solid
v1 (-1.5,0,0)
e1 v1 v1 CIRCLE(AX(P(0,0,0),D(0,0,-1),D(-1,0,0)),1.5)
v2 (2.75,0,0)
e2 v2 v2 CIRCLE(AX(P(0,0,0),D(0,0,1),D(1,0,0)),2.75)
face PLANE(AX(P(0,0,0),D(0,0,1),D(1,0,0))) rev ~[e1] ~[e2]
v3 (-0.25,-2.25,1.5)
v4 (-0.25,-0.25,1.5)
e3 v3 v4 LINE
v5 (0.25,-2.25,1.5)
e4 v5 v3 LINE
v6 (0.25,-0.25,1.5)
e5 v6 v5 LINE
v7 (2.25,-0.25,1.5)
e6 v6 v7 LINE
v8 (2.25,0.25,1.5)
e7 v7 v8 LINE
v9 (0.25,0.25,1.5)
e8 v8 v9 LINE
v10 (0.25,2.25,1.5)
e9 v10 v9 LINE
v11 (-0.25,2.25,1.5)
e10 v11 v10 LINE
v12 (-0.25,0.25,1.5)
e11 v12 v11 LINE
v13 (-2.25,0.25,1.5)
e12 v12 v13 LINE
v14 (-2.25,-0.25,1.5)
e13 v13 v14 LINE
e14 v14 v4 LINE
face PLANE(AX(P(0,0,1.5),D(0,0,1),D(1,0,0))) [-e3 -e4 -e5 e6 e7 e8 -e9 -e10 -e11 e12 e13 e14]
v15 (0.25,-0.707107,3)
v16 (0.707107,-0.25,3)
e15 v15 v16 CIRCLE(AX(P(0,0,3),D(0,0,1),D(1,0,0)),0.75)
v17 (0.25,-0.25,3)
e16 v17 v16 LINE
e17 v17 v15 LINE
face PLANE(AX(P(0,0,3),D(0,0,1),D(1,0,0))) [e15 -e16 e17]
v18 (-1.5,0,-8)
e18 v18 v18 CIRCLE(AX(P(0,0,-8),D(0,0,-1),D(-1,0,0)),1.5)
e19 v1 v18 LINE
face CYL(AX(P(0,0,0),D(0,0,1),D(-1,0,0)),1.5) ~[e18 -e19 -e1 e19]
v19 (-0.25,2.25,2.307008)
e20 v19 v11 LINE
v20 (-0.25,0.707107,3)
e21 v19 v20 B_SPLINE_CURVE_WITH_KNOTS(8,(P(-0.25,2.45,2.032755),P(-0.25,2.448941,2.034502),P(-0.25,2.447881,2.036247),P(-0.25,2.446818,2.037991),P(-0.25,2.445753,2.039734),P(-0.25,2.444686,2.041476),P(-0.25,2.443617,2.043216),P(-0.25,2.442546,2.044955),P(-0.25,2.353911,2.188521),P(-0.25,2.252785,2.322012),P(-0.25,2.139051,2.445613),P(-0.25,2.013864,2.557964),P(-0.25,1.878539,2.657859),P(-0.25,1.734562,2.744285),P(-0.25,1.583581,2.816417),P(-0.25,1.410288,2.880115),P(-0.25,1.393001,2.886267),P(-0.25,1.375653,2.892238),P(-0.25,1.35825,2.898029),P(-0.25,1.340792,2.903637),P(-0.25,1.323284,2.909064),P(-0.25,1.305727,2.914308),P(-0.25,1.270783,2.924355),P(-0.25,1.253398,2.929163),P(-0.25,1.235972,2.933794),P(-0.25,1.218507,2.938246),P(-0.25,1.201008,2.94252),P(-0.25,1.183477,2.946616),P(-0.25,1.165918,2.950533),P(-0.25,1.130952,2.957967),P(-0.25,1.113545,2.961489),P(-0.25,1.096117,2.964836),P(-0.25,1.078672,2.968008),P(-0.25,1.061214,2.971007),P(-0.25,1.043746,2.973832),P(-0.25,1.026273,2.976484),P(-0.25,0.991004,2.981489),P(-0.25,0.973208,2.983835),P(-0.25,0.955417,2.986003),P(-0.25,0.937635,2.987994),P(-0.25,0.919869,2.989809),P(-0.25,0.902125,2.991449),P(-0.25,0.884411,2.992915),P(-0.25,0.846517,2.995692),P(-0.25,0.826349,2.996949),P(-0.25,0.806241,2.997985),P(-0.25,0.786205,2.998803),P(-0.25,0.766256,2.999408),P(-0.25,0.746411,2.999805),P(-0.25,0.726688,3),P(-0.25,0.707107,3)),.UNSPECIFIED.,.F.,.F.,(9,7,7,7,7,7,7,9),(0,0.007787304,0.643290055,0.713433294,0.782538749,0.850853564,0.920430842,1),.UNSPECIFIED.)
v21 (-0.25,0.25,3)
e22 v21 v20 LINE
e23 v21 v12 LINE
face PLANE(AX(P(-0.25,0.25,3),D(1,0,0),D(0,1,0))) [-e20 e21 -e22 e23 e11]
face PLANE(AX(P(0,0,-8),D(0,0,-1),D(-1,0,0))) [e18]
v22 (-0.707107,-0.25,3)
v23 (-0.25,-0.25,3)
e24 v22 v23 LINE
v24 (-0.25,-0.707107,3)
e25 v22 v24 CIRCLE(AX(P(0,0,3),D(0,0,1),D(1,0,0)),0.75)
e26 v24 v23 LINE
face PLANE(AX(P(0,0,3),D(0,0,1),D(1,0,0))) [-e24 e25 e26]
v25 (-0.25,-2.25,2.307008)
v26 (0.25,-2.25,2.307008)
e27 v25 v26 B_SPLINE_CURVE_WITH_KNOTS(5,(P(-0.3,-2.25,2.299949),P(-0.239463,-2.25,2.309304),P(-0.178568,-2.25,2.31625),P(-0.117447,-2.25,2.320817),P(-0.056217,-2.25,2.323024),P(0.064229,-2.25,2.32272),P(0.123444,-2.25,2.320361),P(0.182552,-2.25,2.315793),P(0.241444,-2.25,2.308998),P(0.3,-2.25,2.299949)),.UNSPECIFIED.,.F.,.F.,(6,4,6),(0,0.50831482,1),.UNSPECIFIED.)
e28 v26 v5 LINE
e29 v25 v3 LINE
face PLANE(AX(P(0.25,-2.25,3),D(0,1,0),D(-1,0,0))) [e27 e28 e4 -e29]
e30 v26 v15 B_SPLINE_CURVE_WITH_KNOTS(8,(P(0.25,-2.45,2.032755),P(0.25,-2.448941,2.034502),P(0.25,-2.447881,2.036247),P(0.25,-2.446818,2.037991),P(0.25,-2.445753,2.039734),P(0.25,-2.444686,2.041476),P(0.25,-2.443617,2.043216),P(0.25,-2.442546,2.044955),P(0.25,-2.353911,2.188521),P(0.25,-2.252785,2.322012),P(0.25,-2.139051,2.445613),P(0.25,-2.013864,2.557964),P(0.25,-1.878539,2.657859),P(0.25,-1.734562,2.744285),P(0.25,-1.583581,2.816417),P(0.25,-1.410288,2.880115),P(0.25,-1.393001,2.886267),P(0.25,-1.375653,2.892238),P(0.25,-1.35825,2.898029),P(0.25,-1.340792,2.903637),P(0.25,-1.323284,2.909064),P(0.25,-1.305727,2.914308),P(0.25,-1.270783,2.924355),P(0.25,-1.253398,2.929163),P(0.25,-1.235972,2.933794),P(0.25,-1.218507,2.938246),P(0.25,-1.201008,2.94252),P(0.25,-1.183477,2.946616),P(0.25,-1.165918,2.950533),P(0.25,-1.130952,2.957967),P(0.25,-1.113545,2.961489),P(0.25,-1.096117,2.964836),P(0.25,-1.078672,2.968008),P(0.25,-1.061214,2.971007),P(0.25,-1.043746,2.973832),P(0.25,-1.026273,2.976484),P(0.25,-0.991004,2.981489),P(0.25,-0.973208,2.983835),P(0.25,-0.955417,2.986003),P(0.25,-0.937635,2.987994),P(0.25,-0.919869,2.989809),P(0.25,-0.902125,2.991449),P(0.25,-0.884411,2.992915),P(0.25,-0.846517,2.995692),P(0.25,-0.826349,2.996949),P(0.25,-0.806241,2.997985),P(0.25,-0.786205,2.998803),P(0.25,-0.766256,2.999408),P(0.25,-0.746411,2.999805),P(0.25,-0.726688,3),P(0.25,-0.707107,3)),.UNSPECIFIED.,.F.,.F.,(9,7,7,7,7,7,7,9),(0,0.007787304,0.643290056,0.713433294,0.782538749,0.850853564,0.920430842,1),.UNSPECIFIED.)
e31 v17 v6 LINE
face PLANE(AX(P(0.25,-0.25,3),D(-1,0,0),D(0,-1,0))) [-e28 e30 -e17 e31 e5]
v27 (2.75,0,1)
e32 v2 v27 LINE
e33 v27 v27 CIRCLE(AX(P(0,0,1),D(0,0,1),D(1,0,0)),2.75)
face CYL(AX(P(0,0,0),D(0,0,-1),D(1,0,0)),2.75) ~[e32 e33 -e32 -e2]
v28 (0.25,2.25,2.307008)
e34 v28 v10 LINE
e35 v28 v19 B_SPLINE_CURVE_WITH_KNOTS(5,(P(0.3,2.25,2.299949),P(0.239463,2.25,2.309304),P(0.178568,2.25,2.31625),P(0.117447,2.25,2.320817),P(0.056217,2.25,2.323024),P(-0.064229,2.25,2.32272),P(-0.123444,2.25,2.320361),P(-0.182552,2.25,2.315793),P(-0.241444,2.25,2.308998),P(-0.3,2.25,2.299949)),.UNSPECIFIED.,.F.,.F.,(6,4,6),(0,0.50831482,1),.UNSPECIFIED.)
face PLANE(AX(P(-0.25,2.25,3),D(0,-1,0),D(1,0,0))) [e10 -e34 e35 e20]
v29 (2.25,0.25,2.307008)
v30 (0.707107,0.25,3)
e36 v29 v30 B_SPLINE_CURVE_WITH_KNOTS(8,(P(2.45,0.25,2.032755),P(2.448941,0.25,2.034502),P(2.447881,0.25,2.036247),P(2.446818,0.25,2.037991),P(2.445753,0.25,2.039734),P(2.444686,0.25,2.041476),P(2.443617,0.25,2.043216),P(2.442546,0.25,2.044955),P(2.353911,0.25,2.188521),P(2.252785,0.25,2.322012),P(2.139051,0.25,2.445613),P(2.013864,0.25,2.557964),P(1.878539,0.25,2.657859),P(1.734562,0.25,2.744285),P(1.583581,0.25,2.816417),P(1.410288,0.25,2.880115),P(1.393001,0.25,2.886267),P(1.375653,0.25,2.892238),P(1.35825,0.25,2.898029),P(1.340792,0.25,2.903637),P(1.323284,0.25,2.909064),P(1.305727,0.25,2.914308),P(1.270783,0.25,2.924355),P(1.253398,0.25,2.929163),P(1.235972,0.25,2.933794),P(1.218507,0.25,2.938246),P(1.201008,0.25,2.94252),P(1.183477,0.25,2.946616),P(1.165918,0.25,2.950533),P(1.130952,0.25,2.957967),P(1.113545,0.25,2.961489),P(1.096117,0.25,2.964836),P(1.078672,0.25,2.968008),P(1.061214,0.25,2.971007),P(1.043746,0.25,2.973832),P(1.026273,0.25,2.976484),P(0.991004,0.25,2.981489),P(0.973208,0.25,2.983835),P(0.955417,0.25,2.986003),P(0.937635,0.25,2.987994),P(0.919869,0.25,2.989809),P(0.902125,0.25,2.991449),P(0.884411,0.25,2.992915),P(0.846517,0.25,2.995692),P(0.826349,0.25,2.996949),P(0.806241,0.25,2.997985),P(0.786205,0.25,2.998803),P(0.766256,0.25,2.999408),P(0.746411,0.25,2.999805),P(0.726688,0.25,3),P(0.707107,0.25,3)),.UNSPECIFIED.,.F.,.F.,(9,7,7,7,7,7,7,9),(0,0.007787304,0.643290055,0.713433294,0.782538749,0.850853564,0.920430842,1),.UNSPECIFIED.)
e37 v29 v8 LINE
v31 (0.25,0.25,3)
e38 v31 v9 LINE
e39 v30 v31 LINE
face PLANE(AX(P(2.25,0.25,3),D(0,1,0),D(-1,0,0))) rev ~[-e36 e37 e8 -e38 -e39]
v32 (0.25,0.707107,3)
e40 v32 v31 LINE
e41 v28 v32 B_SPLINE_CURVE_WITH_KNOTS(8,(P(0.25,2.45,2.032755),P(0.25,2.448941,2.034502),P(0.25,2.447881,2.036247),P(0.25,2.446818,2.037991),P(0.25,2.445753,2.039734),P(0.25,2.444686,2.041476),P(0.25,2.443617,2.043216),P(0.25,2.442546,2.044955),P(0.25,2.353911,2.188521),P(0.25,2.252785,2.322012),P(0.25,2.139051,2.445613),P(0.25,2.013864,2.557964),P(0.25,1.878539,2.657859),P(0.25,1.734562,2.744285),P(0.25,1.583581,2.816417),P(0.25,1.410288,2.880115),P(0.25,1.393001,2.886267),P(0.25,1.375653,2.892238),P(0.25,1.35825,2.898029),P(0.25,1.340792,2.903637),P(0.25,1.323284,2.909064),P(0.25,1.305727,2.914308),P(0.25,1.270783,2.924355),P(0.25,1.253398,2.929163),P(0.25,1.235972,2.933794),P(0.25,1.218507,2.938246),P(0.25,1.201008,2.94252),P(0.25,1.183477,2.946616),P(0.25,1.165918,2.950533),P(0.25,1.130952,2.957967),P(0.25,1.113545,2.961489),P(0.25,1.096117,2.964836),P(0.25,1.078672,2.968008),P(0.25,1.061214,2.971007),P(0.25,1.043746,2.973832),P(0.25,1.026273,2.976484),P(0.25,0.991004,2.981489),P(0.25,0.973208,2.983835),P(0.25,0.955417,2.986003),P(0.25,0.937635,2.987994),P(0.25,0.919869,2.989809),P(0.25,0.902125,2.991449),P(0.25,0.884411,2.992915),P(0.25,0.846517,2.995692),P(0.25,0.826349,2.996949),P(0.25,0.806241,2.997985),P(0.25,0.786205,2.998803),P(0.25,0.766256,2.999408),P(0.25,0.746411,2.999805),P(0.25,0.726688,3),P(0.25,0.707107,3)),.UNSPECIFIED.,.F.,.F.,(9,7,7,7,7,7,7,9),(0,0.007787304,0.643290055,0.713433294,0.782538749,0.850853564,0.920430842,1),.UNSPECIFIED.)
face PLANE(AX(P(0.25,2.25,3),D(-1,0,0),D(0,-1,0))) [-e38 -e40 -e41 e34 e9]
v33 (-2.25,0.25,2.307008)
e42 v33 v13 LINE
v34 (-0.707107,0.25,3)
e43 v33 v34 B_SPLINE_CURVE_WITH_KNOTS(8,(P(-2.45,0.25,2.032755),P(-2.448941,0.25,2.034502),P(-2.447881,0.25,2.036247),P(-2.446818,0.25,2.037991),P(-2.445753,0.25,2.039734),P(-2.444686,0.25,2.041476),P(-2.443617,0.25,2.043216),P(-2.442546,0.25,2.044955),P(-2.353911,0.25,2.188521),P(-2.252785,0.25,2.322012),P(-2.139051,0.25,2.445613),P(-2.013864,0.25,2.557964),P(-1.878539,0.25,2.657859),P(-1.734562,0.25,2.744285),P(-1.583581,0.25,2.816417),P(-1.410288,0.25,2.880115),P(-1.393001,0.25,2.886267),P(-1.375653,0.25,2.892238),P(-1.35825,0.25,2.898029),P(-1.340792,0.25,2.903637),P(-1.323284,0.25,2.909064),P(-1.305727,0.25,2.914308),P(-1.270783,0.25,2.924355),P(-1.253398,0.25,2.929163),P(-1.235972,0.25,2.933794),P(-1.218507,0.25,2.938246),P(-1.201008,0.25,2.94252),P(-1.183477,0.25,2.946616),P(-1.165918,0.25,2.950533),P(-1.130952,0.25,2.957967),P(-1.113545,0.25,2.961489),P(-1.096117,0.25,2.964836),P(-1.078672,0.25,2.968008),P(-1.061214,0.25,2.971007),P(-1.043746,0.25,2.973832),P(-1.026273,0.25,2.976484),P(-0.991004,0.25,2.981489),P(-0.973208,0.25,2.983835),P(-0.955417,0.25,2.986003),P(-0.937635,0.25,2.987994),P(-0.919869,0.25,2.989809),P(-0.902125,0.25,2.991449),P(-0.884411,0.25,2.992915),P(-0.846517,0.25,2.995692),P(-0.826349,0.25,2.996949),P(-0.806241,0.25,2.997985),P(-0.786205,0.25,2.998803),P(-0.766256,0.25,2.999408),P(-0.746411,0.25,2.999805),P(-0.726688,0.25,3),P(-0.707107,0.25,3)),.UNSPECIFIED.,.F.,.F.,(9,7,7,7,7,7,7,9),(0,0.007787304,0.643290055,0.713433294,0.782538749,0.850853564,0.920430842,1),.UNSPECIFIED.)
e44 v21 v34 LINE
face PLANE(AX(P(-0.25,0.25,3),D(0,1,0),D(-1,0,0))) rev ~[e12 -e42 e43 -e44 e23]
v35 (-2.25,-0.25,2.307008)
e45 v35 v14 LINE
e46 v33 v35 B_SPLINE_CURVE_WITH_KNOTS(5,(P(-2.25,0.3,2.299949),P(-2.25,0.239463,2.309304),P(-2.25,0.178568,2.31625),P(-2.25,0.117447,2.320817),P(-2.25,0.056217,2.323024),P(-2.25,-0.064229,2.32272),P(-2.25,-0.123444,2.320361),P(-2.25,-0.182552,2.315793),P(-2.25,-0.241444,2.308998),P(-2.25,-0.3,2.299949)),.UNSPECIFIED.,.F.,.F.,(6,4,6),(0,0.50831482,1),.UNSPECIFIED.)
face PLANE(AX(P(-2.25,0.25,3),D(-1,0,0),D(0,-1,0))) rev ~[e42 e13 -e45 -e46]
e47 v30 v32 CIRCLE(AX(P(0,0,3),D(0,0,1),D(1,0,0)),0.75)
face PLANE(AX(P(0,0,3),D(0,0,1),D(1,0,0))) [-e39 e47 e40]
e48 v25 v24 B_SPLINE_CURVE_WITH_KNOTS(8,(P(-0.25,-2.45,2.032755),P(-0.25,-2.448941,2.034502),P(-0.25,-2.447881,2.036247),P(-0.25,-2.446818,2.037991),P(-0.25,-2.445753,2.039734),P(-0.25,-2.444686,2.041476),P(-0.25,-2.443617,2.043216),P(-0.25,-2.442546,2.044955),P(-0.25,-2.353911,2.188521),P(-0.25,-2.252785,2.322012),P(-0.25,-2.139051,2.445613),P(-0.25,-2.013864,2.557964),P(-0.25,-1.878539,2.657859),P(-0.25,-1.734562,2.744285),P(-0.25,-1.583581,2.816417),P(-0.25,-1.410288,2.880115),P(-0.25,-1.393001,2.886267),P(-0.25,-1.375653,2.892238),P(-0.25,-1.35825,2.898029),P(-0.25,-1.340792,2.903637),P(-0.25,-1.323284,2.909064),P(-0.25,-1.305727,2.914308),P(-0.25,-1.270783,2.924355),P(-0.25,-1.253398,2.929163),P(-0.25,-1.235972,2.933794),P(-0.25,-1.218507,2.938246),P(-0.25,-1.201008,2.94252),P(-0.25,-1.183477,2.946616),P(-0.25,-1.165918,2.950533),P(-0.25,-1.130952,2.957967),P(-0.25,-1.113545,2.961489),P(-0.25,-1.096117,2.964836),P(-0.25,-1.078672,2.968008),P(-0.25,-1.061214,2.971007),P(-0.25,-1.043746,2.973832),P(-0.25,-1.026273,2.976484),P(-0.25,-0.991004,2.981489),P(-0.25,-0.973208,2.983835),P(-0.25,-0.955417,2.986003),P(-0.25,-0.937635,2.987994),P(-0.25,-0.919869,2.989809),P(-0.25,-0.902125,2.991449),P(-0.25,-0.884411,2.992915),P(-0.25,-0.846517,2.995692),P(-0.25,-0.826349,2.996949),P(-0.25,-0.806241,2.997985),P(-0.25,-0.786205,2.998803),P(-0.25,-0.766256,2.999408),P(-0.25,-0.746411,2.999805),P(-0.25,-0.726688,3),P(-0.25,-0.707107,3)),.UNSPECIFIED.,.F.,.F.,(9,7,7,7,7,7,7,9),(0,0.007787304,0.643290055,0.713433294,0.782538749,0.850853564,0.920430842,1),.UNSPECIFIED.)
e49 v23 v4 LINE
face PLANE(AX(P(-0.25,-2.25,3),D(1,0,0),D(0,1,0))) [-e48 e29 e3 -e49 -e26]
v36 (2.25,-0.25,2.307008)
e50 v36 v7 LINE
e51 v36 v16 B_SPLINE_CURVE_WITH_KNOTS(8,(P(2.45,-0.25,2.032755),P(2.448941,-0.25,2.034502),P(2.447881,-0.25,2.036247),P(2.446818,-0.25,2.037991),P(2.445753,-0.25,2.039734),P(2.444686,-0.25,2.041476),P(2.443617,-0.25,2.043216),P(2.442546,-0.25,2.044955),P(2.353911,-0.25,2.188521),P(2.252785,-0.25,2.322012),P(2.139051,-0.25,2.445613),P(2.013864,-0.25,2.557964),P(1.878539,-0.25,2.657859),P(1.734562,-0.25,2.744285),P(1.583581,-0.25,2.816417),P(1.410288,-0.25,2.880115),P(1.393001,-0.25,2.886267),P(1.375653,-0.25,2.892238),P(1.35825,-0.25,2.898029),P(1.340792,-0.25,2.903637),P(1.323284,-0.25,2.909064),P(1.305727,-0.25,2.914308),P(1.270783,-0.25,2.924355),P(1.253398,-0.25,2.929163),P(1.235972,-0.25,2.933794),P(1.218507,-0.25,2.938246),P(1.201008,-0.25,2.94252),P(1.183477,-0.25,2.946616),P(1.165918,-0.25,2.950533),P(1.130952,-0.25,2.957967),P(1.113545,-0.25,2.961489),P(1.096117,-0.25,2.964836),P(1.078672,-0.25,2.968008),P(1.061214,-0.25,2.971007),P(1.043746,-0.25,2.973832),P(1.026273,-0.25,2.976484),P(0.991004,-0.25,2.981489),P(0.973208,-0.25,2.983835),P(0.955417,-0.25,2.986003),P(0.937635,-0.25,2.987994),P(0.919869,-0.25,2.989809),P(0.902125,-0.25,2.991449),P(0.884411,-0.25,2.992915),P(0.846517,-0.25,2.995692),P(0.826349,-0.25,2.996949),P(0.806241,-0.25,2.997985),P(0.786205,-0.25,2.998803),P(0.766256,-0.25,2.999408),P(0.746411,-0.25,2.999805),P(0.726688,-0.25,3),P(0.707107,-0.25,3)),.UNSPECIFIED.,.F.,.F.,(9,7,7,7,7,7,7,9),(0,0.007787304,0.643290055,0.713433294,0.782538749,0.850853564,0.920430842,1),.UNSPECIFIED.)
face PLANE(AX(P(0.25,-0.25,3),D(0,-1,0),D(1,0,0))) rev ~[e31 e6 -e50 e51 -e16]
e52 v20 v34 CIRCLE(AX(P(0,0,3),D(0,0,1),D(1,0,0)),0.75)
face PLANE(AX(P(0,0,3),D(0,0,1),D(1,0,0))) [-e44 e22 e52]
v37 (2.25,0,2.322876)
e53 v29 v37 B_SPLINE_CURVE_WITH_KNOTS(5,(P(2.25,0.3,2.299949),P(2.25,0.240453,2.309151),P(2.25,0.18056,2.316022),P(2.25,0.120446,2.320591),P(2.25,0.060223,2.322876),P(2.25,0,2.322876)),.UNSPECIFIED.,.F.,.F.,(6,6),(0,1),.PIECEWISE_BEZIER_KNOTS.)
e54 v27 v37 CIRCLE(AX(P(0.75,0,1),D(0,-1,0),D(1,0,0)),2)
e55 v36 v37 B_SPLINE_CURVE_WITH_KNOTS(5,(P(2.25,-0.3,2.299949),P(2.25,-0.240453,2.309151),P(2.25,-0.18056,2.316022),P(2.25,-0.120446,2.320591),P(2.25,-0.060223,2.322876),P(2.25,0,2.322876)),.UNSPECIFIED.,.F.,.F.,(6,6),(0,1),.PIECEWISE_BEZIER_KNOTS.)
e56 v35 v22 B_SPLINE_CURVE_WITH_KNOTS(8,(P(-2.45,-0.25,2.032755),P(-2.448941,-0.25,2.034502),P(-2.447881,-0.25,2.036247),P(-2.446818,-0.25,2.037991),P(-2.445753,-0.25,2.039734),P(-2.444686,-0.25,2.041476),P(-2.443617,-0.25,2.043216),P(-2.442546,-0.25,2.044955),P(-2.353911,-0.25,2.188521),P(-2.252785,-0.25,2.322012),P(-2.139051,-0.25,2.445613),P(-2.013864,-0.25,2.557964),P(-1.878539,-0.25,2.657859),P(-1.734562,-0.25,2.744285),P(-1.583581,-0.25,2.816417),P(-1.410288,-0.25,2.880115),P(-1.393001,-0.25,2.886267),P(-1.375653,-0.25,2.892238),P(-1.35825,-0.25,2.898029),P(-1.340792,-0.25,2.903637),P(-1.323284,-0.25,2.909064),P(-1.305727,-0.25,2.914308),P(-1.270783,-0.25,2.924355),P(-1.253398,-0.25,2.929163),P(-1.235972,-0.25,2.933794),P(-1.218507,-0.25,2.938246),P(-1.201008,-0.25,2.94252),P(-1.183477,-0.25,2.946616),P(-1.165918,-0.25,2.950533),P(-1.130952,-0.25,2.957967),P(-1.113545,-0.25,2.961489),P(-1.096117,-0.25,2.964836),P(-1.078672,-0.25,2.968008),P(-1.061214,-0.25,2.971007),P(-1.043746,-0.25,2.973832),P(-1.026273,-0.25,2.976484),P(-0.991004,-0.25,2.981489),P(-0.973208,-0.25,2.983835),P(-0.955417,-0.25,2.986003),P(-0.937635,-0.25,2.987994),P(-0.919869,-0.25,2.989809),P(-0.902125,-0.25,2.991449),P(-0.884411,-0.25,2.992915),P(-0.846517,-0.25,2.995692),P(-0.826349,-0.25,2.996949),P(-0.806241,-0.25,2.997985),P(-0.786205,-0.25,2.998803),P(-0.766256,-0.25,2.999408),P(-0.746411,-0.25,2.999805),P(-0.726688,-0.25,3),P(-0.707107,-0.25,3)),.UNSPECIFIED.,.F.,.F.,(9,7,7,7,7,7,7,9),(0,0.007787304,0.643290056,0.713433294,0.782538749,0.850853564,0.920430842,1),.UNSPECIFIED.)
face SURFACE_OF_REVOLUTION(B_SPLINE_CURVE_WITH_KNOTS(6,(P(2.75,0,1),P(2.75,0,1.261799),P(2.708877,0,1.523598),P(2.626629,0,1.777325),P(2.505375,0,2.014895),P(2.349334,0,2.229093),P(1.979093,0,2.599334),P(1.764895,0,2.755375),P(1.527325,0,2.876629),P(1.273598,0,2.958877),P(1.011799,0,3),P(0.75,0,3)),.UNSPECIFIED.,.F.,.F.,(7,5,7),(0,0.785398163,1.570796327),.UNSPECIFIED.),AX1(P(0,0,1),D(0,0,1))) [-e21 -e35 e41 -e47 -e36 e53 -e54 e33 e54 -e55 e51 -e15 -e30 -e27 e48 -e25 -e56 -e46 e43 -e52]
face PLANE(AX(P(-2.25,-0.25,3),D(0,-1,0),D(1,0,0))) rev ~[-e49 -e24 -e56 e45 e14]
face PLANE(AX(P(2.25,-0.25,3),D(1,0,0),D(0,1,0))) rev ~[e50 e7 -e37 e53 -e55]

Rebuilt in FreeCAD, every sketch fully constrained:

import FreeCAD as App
import Part
import Sketcher
from FreeCAD import Vector
Q = App.Units.Quantity


def edges_at(feature, points):
    """Names of the edges that pass closest to the given points."""
    edges = feature.Shape.Edges
    near = lambda p: min(range(len(edges)), key=lambda i: edges[i].distToShape(Part.Vertex(*p))[0])
    return sorted({f"Edge{near(p) + 1}" for p in points})


def add_polygon(sketch, points):
    """Adds a closed chain of lines whose ends are joined by coincident constraints."""
    first, n = sketch.GeometryCount, len(points)
    for a, b in zip(points, points[1:] + points[:1]):
        sketch.addGeometry(Part.LineSegment(App.Vector(*a, 0), App.Vector(*b, 0)), False)
    for i in range(n):
        sketch.addConstraint(Sketcher.Constraint("Coincident", first + i, 2, first + (i + 1) % n, 1))

doc = App.newDocument("Part")
body = doc.addObject("PartDesign::Body", "Body")

sketch1 = doc.addObject("Sketcher::SketchObject", "Sketch")
body.addObject(sketch1)
sketch1.AttachmentSupport = (doc.XY_Plane, [""])
sketch1.MapMode = "FlatFace"
sketch1.addGeometry(Part.Circle(Vector(0, 0, 0), Vector(0, 0, 1), 2.75), False)
sketch1.addConstraint(Sketcher.Constraint("Coincident", 0, 3, -1, 1))
sketch1.addConstraint(Sketcher.Constraint("Diameter", 0, Q("5.5 mm")))
pad1 = doc.addObject("PartDesign::Pad", "Pad")
body.addObject(pad1)
pad1.Profile = sketch1
pad1.Length = 3
doc.recompute()

fillet = doc.addObject("PartDesign::Fillet", "Fillet")
body.addObject(fillet)
fillet.Base = (pad1, edges_at(pad1, [(-2.75, 0, 3)]))
fillet.Radius = 2

sketch2 = doc.addObject("Sketcher::SketchObject", "Sketch001")
body.addObject(sketch2)
sketch2.AttachmentSupport = (doc.XY_Plane, [""])
sketch2.MapMode = "FlatFace"
sketch2.AttachmentOffset = App.Placement(Vector(0, 0, 3), App.Rotation())
add_polygon(sketch2, [(-0.25, -2.25), (0.25, -2.25), (0.25, -0.25), (2.25, -0.25), (2.25, 0.25), (0.25, 0.25), (0.25, 2.25), (-0.25, 2.25), (-0.25, 0.25), (-2.25, 0.25), (-2.25, -0.25), (-0.25, -0.25)])
sketch2.addConstraint(Sketcher.Constraint("Horizontal", 0))
sketch2.addConstraint(Sketcher.Constraint("Vertical", 1))
sketch2.addConstraint(Sketcher.Constraint("Horizontal", 2))
sketch2.addConstraint(Sketcher.Constraint("Vertical", 3))
sketch2.addConstraint(Sketcher.Constraint("Horizontal", 4))
sketch2.addConstraint(Sketcher.Constraint("Vertical", 5))
sketch2.addConstraint(Sketcher.Constraint("Horizontal", 6))
sketch2.addConstraint(Sketcher.Constraint("Vertical", 7))
sketch2.addConstraint(Sketcher.Constraint("Horizontal", 8))
sketch2.addConstraint(Sketcher.Constraint("Vertical", 9))
sketch2.addConstraint(Sketcher.Constraint("Horizontal", 10))
sketch2.addConstraint(Sketcher.Constraint("Vertical", 11))
sketch2.addConstraint(Sketcher.Constraint("Symmetric", 0, 2, 6, 2, -1, 1))
sketch2.addConstraint(Sketcher.Constraint("Symmetric", 2, 2, 8, 2, -1, 1))
sketch2.addConstraint(Sketcher.Constraint("Symmetric", 4, 2, 10, 2, -1, 1))
sketch2.addConstraint(Sketcher.Constraint("Symmetric", 4, 2, 7, 2, -2))
sketch2.addConstraint(Sketcher.Constraint("Equal", 10, 1))
sketch2.addConstraint(Sketcher.Constraint("Equal", 6, 3))
sketch2.addConstraint(Sketcher.Constraint("DistanceX", 0, 1, 0, 2, Q("0.5 mm")))
sketch2.addConstraint(Sketcher.Constraint("DistanceY", 0, 2, 5, 2, Q("4.5 mm")))
pocket1 = doc.addObject("PartDesign::Pocket", "Pocket")
body.addObject(pocket1)
pocket1.Profile = sketch2
pocket1.Length = 1.5

sketch3 = doc.addObject("Sketcher::SketchObject", "Sketch002")
body.addObject(sketch3)
sketch3.AttachmentSupport = (doc.XY_Plane, [""])
sketch3.MapMode = "FlatFace"
sketch3.addGeometry(Part.Circle(Vector(0, 0, 0), Vector(0, 0, 1), 1.5), False)
sketch3.addConstraint(Sketcher.Constraint("Coincident", 0, 3, -1, 1))
sketch3.addConstraint(Sketcher.Constraint("Diameter", 0, Q("3 mm")))
pad2 = doc.addObject("PartDesign::Pad", "Pad001")
body.addObject(pad2)
pad2.Profile = sketch3
pad2.Length = 8
pad2.Reversed = True

doc.recompute()
